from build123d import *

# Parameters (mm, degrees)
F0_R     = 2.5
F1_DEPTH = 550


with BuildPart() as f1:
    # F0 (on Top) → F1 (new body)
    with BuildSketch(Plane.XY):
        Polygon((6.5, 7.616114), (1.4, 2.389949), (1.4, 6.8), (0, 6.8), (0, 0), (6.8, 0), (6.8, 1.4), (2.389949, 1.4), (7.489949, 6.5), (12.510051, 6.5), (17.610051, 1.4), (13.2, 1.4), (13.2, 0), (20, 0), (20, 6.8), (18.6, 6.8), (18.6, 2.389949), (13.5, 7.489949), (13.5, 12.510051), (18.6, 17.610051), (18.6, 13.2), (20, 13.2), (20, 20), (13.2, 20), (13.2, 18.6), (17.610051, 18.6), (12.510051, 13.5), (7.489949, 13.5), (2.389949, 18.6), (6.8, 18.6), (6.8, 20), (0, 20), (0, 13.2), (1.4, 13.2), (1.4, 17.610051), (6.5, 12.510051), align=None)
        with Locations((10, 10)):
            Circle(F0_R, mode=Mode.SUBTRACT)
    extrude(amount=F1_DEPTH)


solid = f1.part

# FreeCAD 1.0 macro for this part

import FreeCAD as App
import Part
import Sketcher
Q = App.Units.Quantity

doc = App.newDocument("Part")
body = doc.addObject("PartDesign::Body", "Body")

sketch1 = body.newObject("Sketcher::SketchObject", "Sketch")
sketch1.AttachmentSupport = (doc.getObject("XY_Plane"), [""])
sketch1.MapMode = "FlatFace"
sketch1.addGeometry([
    Part.LineSegment(App.Vector(6.5, 7.6, 0), App.Vector(1.4, 2.4, 0)),
    Part.LineSegment(App.Vector(1.4, 2.4, 0), App.Vector(1.4, 6.8, 0)),
    Part.LineSegment(App.Vector(1.4, 6.8, 0), App.Vector(0, 6.8, 0)),
    Part.LineSegment(App.Vector(0, 6.8, 0), App.Vector(0, 0, 0)),
    Part.LineSegment(App.Vector(0, 0, 0), App.Vector(6.8, 0, 0)),
    Part.LineSegment(App.Vector(6.8, 0, 0), App.Vector(6.8, 1.4, 0)),
    Part.LineSegment(App.Vector(6.8, 1.4, 0), App.Vector(2.4, 1.4, 0)),
    Part.LineSegment(App.Vector(2.4, 1.4, 0), App.Vector(7.5, 6.5, 0)),
    Part.LineSegment(App.Vector(7.5, 6.5, 0), App.Vector(12.5, 6.5, 0)),
    Part.LineSegment(App.Vector(12.5, 6.5, 0), App.Vector(17.6, 1.4, 0)),
    Part.LineSegment(App.Vector(17.6, 1.4, 0), App.Vector(13.2, 1.4, 0)),
    Part.LineSegment(App.Vector(13.2, 1.4, 0), App.Vector(13.2, 0, 0)),
    Part.LineSegment(App.Vector(13.2, 0, 0), App.Vector(20, 0, 0)),
    Part.LineSegment(App.Vector(20, 0, 0), App.Vector(20, 6.8, 0)),
    Part.LineSegment(App.Vector(20, 6.8, 0), App.Vector(18.6, 6.8, 0)),
    Part.LineSegment(App.Vector(18.6, 6.8, 0), App.Vector(18.6, 2.4, 0)),
    Part.LineSegment(App.Vector(18.6, 2.4, 0), App.Vector(13.5, 7.5, 0)),
    Part.LineSegment(App.Vector(13.5, 7.5, 0), App.Vector(13.5, 12.5, 0)),
    Part.LineSegment(App.Vector(13.5, 12.5, 0), App.Vector(18.6, 17.6, 0)),
    Part.LineSegment(App.Vector(18.6, 17.6, 0), App.Vector(18.6, 13.2, 0)),
    Part.LineSegment(App.Vector(18.6, 13.2, 0), App.Vector(20, 13.2, 0)),
    Part.LineSegment(App.Vector(20, 13.2, 0), App.Vector(20, 20, 0)),
    Part.LineSegment(App.Vector(20, 20, 0), App.Vector(13.2, 20, 0)),
    Part.LineSegment(App.Vector(13.2, 20, 0), App.Vector(13.2, 18.6, 0)),
    Part.LineSegment(App.Vector(13.2, 18.6, 0), App.Vector(17.6, 18.6, 0)),
    Part.LineSegment(App.Vector(17.6, 18.6, 0), App.Vector(12.5, 13.5, 0)),
    Part.LineSegment(App.Vector(12.5, 13.5, 0), App.Vector(7.5, 13.5, 0)),
    Part.LineSegment(App.Vector(7.5, 13.5, 0), App.Vector(2.4, 18.6, 0)),
    Part.LineSegment(App.Vector(2.4, 18.6, 0), App.Vector(6.8, 18.6, 0)),
    Part.LineSegment(App.Vector(6.8, 18.6, 0), App.Vector(6.8, 20, 0)),
    Part.LineSegment(App.Vector(6.8, 20, 0), App.Vector(0, 20, 0)),
    Part.LineSegment(App.Vector(0, 20, 0), App.Vector(0, 13.2, 0)),
    Part.LineSegment(App.Vector(0, 13.2, 0), App.Vector(1.4, 13.2, 0)),
    Part.LineSegment(App.Vector(1.4, 13.2, 0), App.Vector(1.4, 17.6, 0)),
    Part.LineSegment(App.Vector(1.4, 17.6, 0), App.Vector(6.5, 12.5, 0)),
    Part.LineSegment(App.Vector(6.5, 12.5, 0), App.Vector(6.5, 7.6, 0)),
    Part.Circle(App.Vector(10, 10, 0), App.Vector(0, 0, 1), 2.5),
], False)
sketch1.addConstraint([
    Sketcher.Constraint("Coincident", 0, 2, 1, 1),
    Sketcher.Constraint("Coincident", 1, 2, 2, 1),
    Sketcher.Constraint("Coincident", 2, 2, 3, 1),
    Sketcher.Constraint("Coincident", 3, 2, 4, 1),
    Sketcher.Constraint("Coincident", 4, 2, 5, 1),
    Sketcher.Constraint("Coincident", 5, 2, 6, 1),
    Sketcher.Constraint("Coincident", 6, 2, 7, 1),
    Sketcher.Constraint("Coincident", 7, 2, 8, 1),
    Sketcher.Constraint("Coincident", 8, 2, 9, 1),
    Sketcher.Constraint("Coincident", 9, 2, 10, 1),
    Sketcher.Constraint("Coincident", 10, 2, 11, 1),
    Sketcher.Constraint("Coincident", 11, 2, 12, 1),
    Sketcher.Constraint("Coincident", 12, 2, 13, 1),
    Sketcher.Constraint("Coincident", 13, 2, 14, 1),
    Sketcher.Constraint("Coincident", 14, 2, 15, 1),
    Sketcher.Constraint("Coincident", 15, 2, 16, 1),
    Sketcher.Constraint("Coincident", 16, 2, 17, 1),
    Sketcher.Constraint("Coincident", 17, 2, 18, 1),
    Sketcher.Constraint("Coincident", 18, 2, 19, 1),
    Sketcher.Constraint("Coincident", 19, 2, 20, 1),
    Sketcher.Constraint("Coincident", 20, 2, 21, 1),
    Sketcher.Constraint("Coincident", 21, 2, 22, 1),
    Sketcher.Constraint("Coincident", 22, 2, 23, 1),
    Sketcher.Constraint("Coincident", 23, 2, 24, 1),
    Sketcher.Constraint("Coincident", 24, 2, 25, 1),
    Sketcher.Constraint("Coincident", 25, 2, 26, 1),
    Sketcher.Constraint("Coincident", 26, 2, 27, 1),
    Sketcher.Constraint("Coincident", 27, 2, 28, 1),
    Sketcher.Constraint("Coincident", 28, 2, 29, 1),
    Sketcher.Constraint("Coincident", 29, 2, 30, 1),
    Sketcher.Constraint("Coincident", 30, 2, 31, 1),
    Sketcher.Constraint("Coincident", 31, 2, 32, 1),
    Sketcher.Constraint("Coincident", 32, 2, 33, 1),
    Sketcher.Constraint("Coincident", 33, 2, 34, 1),
    Sketcher.Constraint("Coincident", 34, 2, 35, 1),
    Sketcher.Constraint("Coincident", 35, 2, 0, 1),
    Sketcher.Constraint("Vertical", 1),
    Sketcher.Constraint("Horizontal", 2),
    Sketcher.Constraint("Vertical", 3),
    Sketcher.Constraint("Horizontal", 4),
    Sketcher.Constraint("Vertical", 5),
    Sketcher.Constraint("Horizontal", 6),
    Sketcher.Constraint("Horizontal", 8),
    Sketcher.Constraint("Horizontal", 10),
    Sketcher.Constraint("Vertical", 11),
    Sketcher.Constraint("Horizontal", 12),
    Sketcher.Constraint("Vertical", 13),
    Sketcher.Constraint("Horizontal", 14),
    Sketcher.Constraint("Vertical", 15),
    Sketcher.Constraint("Vertical", 17),
    Sketcher.Constraint("Vertical", 19),
    Sketcher.Constraint("Horizontal", 20),
    Sketcher.Constraint("Vertical", 21),
    Sketcher.Constraint("Horizontal", 22),
    Sketcher.Constraint("Vertical", 23),
    Sketcher.Constraint("Horizontal", 24),
    Sketcher.Constraint("Horizontal", 26),
    Sketcher.Constraint("Horizontal", 28),
    Sketcher.Constraint("Vertical", 29),
    Sketcher.Constraint("Horizontal", 30),
    Sketcher.Constraint("Vertical", 31),
    Sketcher.Constraint("Horizontal", 32),
    Sketcher.Constraint("Vertical", 33),
    Sketcher.Constraint("Vertical", 35),
    Sketcher.Constraint("Coincident", 3, 2, -1, 1),
    Sketcher.Constraint("PointOnObject", 11, 2, -1),
    Sketcher.Constraint("PointOnObject", 30, 2, -2),
    Sketcher.Constraint("Perpendicular", 7, 9),
    Sketcher.Constraint("Parallel", 9, 16),
    Sketcher.Constraint("Perpendicular", 16, 18),
    Sketcher.Constraint("Parallel", 18, 25),
    Sketcher.Constraint("Perpendicular", 25, 27),
    Sketcher.Constraint("Parallel", 27, 34),
    Sketcher.Constraint("Horizontal", 6, 2, 9, 2),
    Sketcher.Constraint("Horizontal", 2, 2, 13, 2),
    Sketcher.Constraint("Horizontal", 0, 2, 15, 2),
    Sketcher.Constraint("Horizontal", 24, 2, 27, 2),
    Sketcher.Constraint("Horizontal", 22, 2, 29, 2),
    Sketcher.Constraint("Horizontal", 20, 2, 31, 2),
    Sketcher.Constraint("Horizontal", 18, 2, 33, 2),
    Sketcher.Constraint("Horizontal", 17, 2, 34, 2),
    Sketcher.Constraint("Vertical", 15, 2, 18, 2),
    Sketcher.Constraint("Vertical", 13, 2, 20, 2),
    Sketcher.Constraint("Vertical", 11, 2, 22, 2),
    Sketcher.Constraint("Vertical", 9, 2, 24, 2),
    Sketcher.Constraint("Vertical", 8, 2, 25, 2),
    Sketcher.Constraint("Vertical", 7, 2, 26, 2),
    Sketcher.Constraint("Vertical", 6, 2, 27, 2),
    Sketcher.Constraint("Vertical", 5, 2, 28, 2),
    Sketcher.Constraint("Vertical", 1, 2, 32, 2),
    Sketcher.Constraint("Equal", 6, 10),
    Sketcher.Constraint("Equal", 4, 12),
    Sketcher.Constraint("Equal", 2, 14),
    Sketcher.Constraint("Equal", 28, 1),
    Sketcher.Constraint("Equal", 30, 3),
    Sketcher.Constraint("Equal", 32, 5),
    Sketcher.Constraint("Equal", 26, 17),
    Sketcher.Constraint("Equal", 15, 19),
    Sketcher.Constraint("Equal", 13, 21),
    Sketcher.Constraint("Equal", 11, 23),
    Sketcher.Constraint("Equal", 9, 16),
    Sketcher.Constraint("Diameter", 36, Q("5 mm")),
    Sketcher.Constraint("DistanceX", 2, 2, 2, 1, Q("1.4 mm")),
    Sketcher.Constraint("DistanceX", 4, 1, 4, 2, Q("6.8 mm")),
    Sketcher.Constraint("DistanceX", -1, 1, 36, 3, Q("10 mm")),
    Sketcher.Constraint("DistanceY", -1, 1, 36, 3, Q("10 mm")),
    Sketcher.Constraint("DistanceX", -1, 1, 12, 2, Q("20 mm")),
    Sketcher.Constraint("Angle", 0, Q("-134.299995 deg")),
    Sketcher.Constraint("DistanceY", 7, 2, 26, 2, Q("7 mm")),
    Sketcher.Constraint("DistanceX", 6, 2, 6, 1, Q("4.410051 mm")),
])
pad1 = body.newObject("PartDesign::Pad", "Pad")
pad1.Profile = sketch1
pad1.Length = 550

doc.recompute()
